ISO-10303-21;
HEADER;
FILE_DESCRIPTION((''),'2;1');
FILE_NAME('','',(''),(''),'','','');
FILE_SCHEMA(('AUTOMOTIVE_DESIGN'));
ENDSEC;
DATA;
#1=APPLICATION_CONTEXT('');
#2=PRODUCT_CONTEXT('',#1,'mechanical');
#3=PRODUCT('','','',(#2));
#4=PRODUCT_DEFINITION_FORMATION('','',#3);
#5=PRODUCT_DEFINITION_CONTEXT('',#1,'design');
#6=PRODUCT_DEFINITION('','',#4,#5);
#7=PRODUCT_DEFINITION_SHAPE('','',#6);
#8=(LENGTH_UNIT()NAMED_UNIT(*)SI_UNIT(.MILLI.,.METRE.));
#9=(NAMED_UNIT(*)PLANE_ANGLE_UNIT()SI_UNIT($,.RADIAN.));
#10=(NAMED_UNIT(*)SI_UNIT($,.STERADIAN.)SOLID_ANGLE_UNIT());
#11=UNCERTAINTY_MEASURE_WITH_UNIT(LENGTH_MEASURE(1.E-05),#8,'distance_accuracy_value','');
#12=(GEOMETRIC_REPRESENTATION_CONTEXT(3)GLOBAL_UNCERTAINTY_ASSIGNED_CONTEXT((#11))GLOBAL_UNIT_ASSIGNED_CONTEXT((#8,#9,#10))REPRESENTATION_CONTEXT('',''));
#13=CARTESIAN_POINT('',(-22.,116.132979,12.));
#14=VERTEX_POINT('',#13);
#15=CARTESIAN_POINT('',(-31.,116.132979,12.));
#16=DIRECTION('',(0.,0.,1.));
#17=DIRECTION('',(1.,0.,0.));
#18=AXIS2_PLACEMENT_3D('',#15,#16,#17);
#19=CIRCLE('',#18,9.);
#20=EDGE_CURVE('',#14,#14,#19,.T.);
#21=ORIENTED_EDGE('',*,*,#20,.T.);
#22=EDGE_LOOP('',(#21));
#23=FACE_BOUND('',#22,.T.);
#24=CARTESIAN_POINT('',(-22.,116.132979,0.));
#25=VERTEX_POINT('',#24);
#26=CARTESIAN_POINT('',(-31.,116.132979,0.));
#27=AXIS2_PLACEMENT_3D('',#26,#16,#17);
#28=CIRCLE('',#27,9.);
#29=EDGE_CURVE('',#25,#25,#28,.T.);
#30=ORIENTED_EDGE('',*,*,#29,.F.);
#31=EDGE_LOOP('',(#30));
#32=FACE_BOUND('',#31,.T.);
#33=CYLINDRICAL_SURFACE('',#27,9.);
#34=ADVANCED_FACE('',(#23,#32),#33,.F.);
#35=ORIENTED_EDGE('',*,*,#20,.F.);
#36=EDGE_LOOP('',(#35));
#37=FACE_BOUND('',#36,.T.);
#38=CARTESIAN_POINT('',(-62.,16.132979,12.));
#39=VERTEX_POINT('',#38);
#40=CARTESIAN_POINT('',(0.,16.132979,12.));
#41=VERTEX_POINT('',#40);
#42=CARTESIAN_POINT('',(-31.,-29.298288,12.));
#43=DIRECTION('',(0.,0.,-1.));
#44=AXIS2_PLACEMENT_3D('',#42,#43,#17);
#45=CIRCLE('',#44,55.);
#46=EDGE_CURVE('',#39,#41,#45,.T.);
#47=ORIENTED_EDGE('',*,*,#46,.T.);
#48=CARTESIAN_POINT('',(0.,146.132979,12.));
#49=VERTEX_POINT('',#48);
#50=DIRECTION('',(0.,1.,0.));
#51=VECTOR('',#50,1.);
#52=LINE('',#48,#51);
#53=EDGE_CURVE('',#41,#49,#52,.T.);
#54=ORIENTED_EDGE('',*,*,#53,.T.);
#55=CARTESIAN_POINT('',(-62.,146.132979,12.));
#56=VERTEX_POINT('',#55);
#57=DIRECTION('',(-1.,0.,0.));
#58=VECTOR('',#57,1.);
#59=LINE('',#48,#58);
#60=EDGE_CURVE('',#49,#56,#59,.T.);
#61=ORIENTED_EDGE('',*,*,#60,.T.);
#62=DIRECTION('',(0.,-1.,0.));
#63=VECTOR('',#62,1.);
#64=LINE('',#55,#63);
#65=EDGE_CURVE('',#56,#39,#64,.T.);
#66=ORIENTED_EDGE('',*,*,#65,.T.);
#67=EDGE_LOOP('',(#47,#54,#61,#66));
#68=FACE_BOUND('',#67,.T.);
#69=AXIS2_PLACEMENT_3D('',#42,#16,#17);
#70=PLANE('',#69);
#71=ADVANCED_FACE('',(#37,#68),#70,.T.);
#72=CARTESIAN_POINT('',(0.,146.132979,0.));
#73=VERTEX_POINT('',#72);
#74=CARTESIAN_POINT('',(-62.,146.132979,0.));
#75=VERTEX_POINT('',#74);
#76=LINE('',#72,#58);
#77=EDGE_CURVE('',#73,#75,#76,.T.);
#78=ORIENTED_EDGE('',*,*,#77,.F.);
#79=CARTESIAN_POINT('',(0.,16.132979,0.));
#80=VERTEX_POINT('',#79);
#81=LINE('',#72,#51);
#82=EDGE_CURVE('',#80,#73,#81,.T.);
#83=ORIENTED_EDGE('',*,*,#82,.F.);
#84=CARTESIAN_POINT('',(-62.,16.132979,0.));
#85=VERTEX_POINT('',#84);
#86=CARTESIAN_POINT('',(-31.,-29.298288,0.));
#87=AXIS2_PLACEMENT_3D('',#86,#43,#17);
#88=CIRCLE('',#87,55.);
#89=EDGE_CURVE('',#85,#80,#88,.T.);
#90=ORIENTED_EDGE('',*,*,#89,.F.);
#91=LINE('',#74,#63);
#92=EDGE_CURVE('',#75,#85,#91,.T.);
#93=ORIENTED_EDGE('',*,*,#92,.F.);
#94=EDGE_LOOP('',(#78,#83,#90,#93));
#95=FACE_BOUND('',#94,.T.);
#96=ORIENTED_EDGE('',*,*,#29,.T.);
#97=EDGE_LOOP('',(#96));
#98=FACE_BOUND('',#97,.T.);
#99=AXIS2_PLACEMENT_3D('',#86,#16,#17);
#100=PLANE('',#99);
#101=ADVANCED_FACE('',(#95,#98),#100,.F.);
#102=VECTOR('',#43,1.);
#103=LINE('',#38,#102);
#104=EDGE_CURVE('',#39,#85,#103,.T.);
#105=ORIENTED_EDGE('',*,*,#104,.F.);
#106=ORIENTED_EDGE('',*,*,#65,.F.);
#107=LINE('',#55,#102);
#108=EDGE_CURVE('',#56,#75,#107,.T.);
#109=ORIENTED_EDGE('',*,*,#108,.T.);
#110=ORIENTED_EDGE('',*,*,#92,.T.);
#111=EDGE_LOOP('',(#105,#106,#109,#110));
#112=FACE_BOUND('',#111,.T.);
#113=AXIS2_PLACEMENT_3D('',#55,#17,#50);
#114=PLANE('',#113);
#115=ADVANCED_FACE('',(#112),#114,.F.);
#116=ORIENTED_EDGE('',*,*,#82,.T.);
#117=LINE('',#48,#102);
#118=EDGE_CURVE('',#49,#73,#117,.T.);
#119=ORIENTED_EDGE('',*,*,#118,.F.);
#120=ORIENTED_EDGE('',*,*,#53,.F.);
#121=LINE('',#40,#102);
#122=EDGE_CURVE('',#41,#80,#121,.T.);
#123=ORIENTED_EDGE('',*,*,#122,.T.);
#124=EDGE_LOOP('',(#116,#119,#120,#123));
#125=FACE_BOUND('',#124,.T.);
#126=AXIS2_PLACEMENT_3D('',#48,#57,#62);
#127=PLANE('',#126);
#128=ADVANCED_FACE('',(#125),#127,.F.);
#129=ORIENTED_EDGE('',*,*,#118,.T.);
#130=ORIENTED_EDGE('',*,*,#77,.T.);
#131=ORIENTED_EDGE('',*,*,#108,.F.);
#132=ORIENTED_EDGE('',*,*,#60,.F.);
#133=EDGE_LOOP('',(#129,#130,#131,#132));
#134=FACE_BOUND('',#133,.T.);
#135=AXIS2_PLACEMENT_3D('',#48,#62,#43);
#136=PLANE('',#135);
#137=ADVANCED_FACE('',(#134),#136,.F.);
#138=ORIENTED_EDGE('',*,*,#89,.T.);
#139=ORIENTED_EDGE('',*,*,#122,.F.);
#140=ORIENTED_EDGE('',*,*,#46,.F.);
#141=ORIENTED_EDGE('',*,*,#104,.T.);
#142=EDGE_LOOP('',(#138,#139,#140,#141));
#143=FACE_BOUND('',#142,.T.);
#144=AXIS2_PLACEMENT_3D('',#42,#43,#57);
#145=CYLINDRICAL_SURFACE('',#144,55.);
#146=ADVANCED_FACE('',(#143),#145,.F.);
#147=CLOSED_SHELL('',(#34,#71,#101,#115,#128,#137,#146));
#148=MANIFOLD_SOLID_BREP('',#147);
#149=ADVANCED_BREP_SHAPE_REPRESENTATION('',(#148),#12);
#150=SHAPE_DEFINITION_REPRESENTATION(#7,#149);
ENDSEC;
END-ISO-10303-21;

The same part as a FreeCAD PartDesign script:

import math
import FreeCAD as App
import Part
import Sketcher

doc = App.newDocument("Part")
body = doc.addObject("PartDesign::Body", "Body")

# Sketch on XY plane
sketch1 = body.newObject("Sketcher::SketchObject", "Sketch")
sketch1.AttachmentSupport = (doc.getObject("XY_Plane"), [""])
sketch1.MapMode = "FlatFace"
sketch1.addGeometry([
    Part.LineSegment(App.Vector(0, 146, 0), App.Vector(-62, 146, 0)),
    Part.LineSegment(App.Vector(-62, 146, 0), App.Vector(-62, 16, 0)),
    Part.ArcOfCircle(Part.Circle(App.Vector(-31, -29, 0), App.Vector(0, 0, 1), 55), math.radians(56), math.radians(124)),
    Part.LineSegment(App.Vector(0, 16, 0), App.Vector(0, 146, 0)),
], False)
sketch1.addConstraint([
    Sketcher.Constraint("Coincident", 0, 2, 1, 1),
    Sketcher.Constraint("Coincident", 1, 2, 2, 2),
    Sketcher.Constraint("Coincident", 2, 1, 3, 1),
    Sketcher.Constraint("Coincident", 3, 2, 0, 1),
    Sketcher.Constraint("Horizontal", 0),
    Sketcher.Constraint("Vertical", 1),
    Sketcher.Constraint("Vertical", 3),
    Sketcher.Constraint("PointOnObject", 2, 1, -2),
    Sketcher.Constraint("Horizontal", 1, 2, 2, 1),
    Sketcher.Constraint("Radius", 2, 55.0),
    Sketcher.Constraint("DistanceX", 0, 2, 0, 1, 62.0),
    Sketcher.Constraint("DistanceY", 1, 2, 1, 1, 130.0),
    Sketcher.Constraint("DistanceY", 2, 3, -1, 1, 29.298288),
])
pad1 = body.newObject("PartDesign::Pad", "Pad")
pad1.Profile = sketch1
pad1.Length = 12

# Sketch on XY plane
sketch2 = body.newObject("Sketcher::SketchObject", "Sketch001")
sketch2.AttachmentSupport = (doc.getObject("XY_Plane"), [""])
sketch2.MapMode = "FlatFace"
sketch2.AttachmentOffset = App.Placement(App.Vector(0, 0, 12), App.Rotation())
sketch2.addGeometry(Part.Circle(App.Vector(-31, 116, 0), App.Vector(0, 0, 1), 9), False)
sketch2.addConstraint([
    Sketcher.Constraint("Diameter", 0, 18.0),
    Sketcher.Constraint("DistanceX", 0, 3, -1, 1, 31.0),
    Sketcher.Constraint("DistanceY", -1, 1, 0, 3, 116.132979),
])
pocket1 = body.newObject("PartDesign::Pocket", "Pocket")
pocket1.Profile = sketch2
pocket1.Length = 12

doc.recompute()
